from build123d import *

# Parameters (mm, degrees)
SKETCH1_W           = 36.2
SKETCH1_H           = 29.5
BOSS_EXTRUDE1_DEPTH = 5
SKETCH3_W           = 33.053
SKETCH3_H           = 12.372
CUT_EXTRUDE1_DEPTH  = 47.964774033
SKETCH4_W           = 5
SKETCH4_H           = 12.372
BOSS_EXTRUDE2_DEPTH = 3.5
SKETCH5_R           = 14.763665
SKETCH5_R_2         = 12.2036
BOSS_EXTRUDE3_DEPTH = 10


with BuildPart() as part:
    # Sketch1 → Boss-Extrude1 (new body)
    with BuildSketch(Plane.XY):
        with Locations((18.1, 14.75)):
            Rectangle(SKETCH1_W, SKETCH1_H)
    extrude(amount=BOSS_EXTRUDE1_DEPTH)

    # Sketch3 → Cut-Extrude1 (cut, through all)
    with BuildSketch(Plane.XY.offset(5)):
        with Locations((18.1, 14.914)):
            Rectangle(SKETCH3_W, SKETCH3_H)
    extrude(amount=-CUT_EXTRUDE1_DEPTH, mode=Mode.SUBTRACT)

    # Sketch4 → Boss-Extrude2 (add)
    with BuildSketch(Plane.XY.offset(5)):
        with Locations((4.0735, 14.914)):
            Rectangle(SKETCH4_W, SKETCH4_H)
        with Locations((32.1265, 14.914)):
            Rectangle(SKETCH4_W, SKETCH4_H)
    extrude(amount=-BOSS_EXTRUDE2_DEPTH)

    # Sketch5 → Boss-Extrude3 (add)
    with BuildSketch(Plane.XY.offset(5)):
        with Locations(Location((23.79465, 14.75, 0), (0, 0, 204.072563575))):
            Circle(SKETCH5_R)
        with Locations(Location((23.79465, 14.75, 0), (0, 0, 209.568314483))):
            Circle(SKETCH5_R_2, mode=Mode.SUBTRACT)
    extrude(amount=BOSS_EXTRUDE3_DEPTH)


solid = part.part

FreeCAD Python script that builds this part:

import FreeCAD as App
import Part
import Sketcher
from FreeCAD import Vector
Q = App.Units.Quantity


def add_polygon(sketch, points):
    """Adds a closed chain of lines whose ends are joined by coincident constraints."""
    first, n = sketch.GeometryCount, len(points)
    for a, b in zip(points, points[1:] + points[:1]):
        sketch.addGeometry(Part.LineSegment(App.Vector(*a, 0), App.Vector(*b, 0)), False)
    for i in range(n):
        sketch.addConstraint(Sketcher.Constraint("Coincident", first + i, 2, first + (i + 1) % n, 1))

doc = App.newDocument("Part")
body = doc.addObject("PartDesign::Body", "Body")

# Sketch on XY plane
sketch1 = body.newObject("Sketcher::SketchObject", "Sketch")
sketch1.AttachmentSupport = (doc.getObject("XY_Plane"), [""])
sketch1.MapMode = "FlatFace"
add_polygon(sketch1, [(0, 30), (0, 0), (36, 0), (36, 30)])  # lines 0-3
sketch1.addConstraint([
    Sketcher.Constraint("Vertical", 0),
    Sketcher.Constraint("Horizontal", 1),
    Sketcher.Constraint("Vertical", 2),
    Sketcher.Constraint("Horizontal", 3),
    Sketcher.Constraint("Coincident", 0, 2, -1, 1),
    Sketcher.Constraint("DistanceX", 1, 1, 1, 2, Q("36.2 mm")),
    Sketcher.Constraint("DistanceY", 0, 2, 0, 1, Q("29.5 mm")),
])
pad1 = body.newObject("PartDesign::Pad", "Pad")
pad1.Profile = sketch1
pad1.Length = 5

# Sketch on XY plane
sketch2 = body.newObject("Sketcher::SketchObject", "Sketch001")
sketch2.AttachmentSupport = (doc.getObject("XY_Plane"), [""])
sketch2.MapMode = "FlatFace"
sketch2.AttachmentOffset = App.Placement(Vector(0, 0, 5), App.Rotation())
add_polygon(sketch2, [(2, 21), (2, 9), (35, 9), (35, 21)])  # lines 0-3
sketch2.addConstraint([
    Sketcher.Constraint("Vertical", 0),
    Sketcher.Constraint("Horizontal", 1),
    Sketcher.Constraint("Vertical", 2),
    Sketcher.Constraint("Horizontal", 3),
    Sketcher.Constraint("DistanceY", -1, 1, 2, 2, Q("21.1 mm")),
    Sketcher.Constraint("DistanceX", 1, 1, 1, 2, Q("33.053 mm")),
    Sketcher.Constraint("DistanceY", 0, 2, 0, 1, Q("12.372 mm")),
    Sketcher.Constraint("DistanceX", -1, 1, 0, 2, Q("1.5735 mm")),
])
pocket1 = body.newObject("PartDesign::Pocket", "Pocket")
pocket1.Profile = sketch2
pocket1.Type = "ThroughAll"

# Sketch on XY plane
sketch3 = body.newObject("Sketcher::SketchObject", "Sketch002")
sketch3.AttachmentSupport = (doc.getObject("XY_Plane"), [""])
sketch3.MapMode = "FlatFace"
sketch3.AttachmentOffset = App.Placement(Vector(0, 0, 5), App.Rotation())
add_polygon(sketch3, [(2, 21), (2, 9), (7, 9), (7, 21)])  # lines 0-3
add_polygon(sketch3, [(30, 21), (30, 9), (35, 9), (35, 21)])  # lines 4-7
sketch3.addConstraint([
    Sketcher.Constraint("Vertical", 0),
    Sketcher.Constraint("Horizontal", 1),
    Sketcher.Constraint("Vertical", 2),
    Sketcher.Constraint("Horizontal", 3),
    Sketcher.Constraint("Vertical", 4),
    Sketcher.Constraint("Horizontal", 5),
    Sketcher.Constraint("Vertical", 6),
    Sketcher.Constraint("Horizontal", 7),
    Sketcher.Constraint("Horizontal", 1, 2, 4, 2),
    Sketcher.Constraint("Horizontal", 3, 2, 6, 2),
    Sketcher.Constraint("Equal", 3, 5),
    Sketcher.Constraint("DistanceX", 1, 1, 1, 2, Q("5 mm")),
    Sketcher.Constraint("DistanceY", -1, 1, 2, 2, Q("21.1 mm")),
    Sketcher.Constraint("DistanceY", 0, 2, 0, 1, Q("12.372 mm")),
    Sketcher.Constraint("DistanceX", 1, 2, 4, 2, Q("23.053 mm")),
    Sketcher.Constraint("DistanceX", -1, 1, 0, 2, Q("1.5735 mm")),
])
pad2 = body.newObject("PartDesign::Pad", "Pad001")
pad2.Profile = sketch3
pad2.Length = 3.5
pad2.Reversed = True

# Sketch on XY plane
sketch4 = body.newObject("Sketcher::SketchObject", "Sketch003")
sketch4.AttachmentSupport = (doc.getObject("XY_Plane"), [""])
sketch4.MapMode = "FlatFace"
sketch4.AttachmentOffset = App.Placement(Vector(0, 0, 5), App.Rotation())
sketch4.addGeometry([
    Part.Circle(Vector(24, 15, 0), Vector(0, 0, 1), 15),
    Part.Circle(Vector(24, 15, 0), Vector(0, 0, 1), 12),
], False)
sketch4.addConstraint([
    Sketcher.Constraint("Coincident", 1, 3, 0, 3),
    Sketcher.Constraint("Diameter", 1, Q("24.4072 mm")),
    Sketcher.Constraint("Diameter", 0, Q("29.52733 mm")),
    Sketcher.Constraint("DistanceY", -1, 1, 0, 3, Q("14.75 mm")),
    Sketcher.Constraint("DistanceX", -1, 1, 0, 3, Q("23.79465 mm")),
])
pad3 = body.newObject("PartDesign::Pad", "Pad002")
pad3.Profile = sketch4
pad3.Length = 10

doc.recompute()
